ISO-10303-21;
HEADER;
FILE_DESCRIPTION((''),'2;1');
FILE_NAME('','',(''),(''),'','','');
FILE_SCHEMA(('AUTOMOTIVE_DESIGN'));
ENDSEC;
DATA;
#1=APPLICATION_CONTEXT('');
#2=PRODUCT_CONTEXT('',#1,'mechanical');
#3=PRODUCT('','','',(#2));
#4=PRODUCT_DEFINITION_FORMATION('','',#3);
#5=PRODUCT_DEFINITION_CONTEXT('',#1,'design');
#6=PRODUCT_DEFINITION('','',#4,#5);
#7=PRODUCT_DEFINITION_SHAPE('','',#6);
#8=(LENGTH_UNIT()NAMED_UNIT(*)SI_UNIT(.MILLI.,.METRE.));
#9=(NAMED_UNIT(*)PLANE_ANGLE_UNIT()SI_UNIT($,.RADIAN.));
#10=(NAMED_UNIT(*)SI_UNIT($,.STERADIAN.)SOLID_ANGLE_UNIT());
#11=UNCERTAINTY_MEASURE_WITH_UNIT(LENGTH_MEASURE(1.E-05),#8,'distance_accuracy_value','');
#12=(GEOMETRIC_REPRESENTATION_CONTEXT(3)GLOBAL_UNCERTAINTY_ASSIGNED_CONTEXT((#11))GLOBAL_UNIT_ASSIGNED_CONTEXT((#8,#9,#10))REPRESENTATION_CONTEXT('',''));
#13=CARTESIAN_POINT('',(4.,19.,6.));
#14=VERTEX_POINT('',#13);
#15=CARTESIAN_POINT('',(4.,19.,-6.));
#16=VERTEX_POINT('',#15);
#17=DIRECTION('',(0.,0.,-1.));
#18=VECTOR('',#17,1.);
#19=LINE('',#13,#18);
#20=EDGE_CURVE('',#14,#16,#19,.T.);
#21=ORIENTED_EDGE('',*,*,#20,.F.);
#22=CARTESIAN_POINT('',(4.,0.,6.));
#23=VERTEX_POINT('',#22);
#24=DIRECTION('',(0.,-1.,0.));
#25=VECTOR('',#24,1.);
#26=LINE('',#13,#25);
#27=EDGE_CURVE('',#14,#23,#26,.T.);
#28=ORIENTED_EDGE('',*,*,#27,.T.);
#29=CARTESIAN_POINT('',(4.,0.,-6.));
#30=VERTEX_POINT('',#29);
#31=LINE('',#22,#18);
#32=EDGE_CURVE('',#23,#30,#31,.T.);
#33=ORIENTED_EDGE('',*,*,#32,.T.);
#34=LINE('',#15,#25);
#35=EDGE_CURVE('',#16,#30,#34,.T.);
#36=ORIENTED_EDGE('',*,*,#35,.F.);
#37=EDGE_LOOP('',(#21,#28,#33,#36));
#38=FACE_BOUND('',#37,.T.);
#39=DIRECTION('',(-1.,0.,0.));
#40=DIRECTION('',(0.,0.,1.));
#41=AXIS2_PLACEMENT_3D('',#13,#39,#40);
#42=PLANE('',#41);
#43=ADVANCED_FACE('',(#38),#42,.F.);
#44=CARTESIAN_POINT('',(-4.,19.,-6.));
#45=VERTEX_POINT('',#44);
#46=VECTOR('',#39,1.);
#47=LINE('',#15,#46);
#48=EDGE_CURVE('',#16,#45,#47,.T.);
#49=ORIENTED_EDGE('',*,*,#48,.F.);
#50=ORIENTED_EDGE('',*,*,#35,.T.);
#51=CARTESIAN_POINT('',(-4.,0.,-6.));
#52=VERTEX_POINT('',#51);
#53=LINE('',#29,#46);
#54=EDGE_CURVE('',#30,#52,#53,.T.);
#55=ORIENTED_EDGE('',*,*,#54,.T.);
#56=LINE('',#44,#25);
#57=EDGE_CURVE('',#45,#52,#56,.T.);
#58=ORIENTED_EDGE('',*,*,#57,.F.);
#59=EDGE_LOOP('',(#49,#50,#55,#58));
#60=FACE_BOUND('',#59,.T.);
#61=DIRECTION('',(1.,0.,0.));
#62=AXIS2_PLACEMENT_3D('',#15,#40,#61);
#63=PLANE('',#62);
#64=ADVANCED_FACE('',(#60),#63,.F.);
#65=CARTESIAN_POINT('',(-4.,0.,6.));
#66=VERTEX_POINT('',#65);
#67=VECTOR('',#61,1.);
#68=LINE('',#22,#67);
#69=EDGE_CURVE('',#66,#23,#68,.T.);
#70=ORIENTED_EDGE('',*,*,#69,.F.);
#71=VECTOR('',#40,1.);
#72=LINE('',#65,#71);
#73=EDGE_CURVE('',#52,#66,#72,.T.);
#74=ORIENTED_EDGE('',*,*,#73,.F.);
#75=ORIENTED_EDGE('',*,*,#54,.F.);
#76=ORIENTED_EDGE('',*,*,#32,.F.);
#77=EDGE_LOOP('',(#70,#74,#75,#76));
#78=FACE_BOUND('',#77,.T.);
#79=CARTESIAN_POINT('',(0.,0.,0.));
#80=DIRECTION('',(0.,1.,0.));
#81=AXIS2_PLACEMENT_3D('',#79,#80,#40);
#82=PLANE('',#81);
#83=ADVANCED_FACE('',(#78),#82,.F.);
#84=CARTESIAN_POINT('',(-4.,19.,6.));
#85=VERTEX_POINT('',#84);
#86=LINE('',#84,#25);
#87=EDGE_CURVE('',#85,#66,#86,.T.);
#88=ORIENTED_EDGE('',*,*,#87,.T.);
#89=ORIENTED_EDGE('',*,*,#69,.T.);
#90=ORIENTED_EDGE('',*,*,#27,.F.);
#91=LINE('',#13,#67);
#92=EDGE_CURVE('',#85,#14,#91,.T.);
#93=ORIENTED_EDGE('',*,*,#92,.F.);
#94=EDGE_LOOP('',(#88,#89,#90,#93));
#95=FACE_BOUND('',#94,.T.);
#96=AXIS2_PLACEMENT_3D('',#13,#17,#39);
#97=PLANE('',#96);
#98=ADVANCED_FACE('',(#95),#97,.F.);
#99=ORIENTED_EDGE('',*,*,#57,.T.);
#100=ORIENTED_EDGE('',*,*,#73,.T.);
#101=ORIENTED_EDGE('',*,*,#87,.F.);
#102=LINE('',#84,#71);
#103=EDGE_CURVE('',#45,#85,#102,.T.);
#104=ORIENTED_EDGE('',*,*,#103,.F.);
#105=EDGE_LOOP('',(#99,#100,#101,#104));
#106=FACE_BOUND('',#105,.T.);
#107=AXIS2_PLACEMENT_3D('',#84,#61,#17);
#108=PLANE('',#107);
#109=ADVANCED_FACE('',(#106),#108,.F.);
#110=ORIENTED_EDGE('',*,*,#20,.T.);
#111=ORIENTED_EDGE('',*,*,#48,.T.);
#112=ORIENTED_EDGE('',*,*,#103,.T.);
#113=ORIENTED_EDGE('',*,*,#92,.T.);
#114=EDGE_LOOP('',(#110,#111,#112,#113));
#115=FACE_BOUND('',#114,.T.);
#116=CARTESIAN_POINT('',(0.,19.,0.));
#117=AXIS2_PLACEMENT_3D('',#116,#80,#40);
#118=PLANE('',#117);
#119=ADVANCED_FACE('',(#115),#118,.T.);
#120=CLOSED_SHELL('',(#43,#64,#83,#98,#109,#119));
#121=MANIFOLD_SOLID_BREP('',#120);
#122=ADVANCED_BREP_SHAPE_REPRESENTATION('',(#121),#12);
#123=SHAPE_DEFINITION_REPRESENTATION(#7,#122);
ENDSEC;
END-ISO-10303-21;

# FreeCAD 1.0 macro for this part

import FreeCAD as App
import Part
import Sketcher

doc = App.newDocument("Part")
params = doc.addObject("Spreadsheet::Sheet", "Params")
for row, (alias, value) in enumerate([
    ("sketch1_width", "8 mm"),
    ("sketch1_height", "12 mm"),
    ("pad1_length", "19 mm"),
], start=1):
    params.set(f"A{row}", alias)
    params.set(f"B{row}", "=" + value)
    params.setAlias(f"B{row}", alias)

body = doc.addObject("PartDesign::Body", "Body")

# Sketch on XZ plane
sketch1 = doc.addObject("Sketcher::SketchObject", "Sketch")
body.addObject(sketch1)
sketch1.AttachmentSupport = (doc.XZ_Plane, [""])
sketch1.MapMode = "FlatFace"
sketch1.addGeometry([
    Part.LineSegment(App.Vector(-4, -6, 0), App.Vector(-4, 6, 0)),
    Part.LineSegment(App.Vector(-4, 6, 0), App.Vector(4, 6, 0)),
    Part.LineSegment(App.Vector(4, 6, 0), App.Vector(4, -6, 0)),
    Part.LineSegment(App.Vector(4, -6, 0), App.Vector(-4, -6, 0)),
], False)
sketch1.addConstraint([
    Sketcher.Constraint("Coincident", 0, 2, 1, 1),
    Sketcher.Constraint("Coincident", 1, 2, 2, 1),
    Sketcher.Constraint("Coincident", 2, 2, 3, 1),
    Sketcher.Constraint("Coincident", 3, 2, 0, 1),
    Sketcher.Constraint("Vertical", 0),
    Sketcher.Constraint("Horizontal", 1),
    Sketcher.Constraint("Vertical", 2),
    Sketcher.Constraint("Horizontal", 3),
    Sketcher.Constraint("Symmetric", 0, 2, 2, 2, -1, 1),
    Sketcher.Constraint("DistanceX", 1, 1, 1, 2, 8.0),
    Sketcher.Constraint("DistanceY", 0, 1, 0, 2, 12.0),
])
sketch1.setExpression("Constraints[9]", "Params.sketch1_width")
sketch1.setExpression("Constraints[10]", "Params.sketch1_height")
pad1 = doc.addObject("PartDesign::Pad", "Pad")
body.addObject(pad1)
pad1.Profile = sketch1
pad1.setExpression("Length", "Params.pad1_length")
pad1.Reversed = True

doc.recompute()
